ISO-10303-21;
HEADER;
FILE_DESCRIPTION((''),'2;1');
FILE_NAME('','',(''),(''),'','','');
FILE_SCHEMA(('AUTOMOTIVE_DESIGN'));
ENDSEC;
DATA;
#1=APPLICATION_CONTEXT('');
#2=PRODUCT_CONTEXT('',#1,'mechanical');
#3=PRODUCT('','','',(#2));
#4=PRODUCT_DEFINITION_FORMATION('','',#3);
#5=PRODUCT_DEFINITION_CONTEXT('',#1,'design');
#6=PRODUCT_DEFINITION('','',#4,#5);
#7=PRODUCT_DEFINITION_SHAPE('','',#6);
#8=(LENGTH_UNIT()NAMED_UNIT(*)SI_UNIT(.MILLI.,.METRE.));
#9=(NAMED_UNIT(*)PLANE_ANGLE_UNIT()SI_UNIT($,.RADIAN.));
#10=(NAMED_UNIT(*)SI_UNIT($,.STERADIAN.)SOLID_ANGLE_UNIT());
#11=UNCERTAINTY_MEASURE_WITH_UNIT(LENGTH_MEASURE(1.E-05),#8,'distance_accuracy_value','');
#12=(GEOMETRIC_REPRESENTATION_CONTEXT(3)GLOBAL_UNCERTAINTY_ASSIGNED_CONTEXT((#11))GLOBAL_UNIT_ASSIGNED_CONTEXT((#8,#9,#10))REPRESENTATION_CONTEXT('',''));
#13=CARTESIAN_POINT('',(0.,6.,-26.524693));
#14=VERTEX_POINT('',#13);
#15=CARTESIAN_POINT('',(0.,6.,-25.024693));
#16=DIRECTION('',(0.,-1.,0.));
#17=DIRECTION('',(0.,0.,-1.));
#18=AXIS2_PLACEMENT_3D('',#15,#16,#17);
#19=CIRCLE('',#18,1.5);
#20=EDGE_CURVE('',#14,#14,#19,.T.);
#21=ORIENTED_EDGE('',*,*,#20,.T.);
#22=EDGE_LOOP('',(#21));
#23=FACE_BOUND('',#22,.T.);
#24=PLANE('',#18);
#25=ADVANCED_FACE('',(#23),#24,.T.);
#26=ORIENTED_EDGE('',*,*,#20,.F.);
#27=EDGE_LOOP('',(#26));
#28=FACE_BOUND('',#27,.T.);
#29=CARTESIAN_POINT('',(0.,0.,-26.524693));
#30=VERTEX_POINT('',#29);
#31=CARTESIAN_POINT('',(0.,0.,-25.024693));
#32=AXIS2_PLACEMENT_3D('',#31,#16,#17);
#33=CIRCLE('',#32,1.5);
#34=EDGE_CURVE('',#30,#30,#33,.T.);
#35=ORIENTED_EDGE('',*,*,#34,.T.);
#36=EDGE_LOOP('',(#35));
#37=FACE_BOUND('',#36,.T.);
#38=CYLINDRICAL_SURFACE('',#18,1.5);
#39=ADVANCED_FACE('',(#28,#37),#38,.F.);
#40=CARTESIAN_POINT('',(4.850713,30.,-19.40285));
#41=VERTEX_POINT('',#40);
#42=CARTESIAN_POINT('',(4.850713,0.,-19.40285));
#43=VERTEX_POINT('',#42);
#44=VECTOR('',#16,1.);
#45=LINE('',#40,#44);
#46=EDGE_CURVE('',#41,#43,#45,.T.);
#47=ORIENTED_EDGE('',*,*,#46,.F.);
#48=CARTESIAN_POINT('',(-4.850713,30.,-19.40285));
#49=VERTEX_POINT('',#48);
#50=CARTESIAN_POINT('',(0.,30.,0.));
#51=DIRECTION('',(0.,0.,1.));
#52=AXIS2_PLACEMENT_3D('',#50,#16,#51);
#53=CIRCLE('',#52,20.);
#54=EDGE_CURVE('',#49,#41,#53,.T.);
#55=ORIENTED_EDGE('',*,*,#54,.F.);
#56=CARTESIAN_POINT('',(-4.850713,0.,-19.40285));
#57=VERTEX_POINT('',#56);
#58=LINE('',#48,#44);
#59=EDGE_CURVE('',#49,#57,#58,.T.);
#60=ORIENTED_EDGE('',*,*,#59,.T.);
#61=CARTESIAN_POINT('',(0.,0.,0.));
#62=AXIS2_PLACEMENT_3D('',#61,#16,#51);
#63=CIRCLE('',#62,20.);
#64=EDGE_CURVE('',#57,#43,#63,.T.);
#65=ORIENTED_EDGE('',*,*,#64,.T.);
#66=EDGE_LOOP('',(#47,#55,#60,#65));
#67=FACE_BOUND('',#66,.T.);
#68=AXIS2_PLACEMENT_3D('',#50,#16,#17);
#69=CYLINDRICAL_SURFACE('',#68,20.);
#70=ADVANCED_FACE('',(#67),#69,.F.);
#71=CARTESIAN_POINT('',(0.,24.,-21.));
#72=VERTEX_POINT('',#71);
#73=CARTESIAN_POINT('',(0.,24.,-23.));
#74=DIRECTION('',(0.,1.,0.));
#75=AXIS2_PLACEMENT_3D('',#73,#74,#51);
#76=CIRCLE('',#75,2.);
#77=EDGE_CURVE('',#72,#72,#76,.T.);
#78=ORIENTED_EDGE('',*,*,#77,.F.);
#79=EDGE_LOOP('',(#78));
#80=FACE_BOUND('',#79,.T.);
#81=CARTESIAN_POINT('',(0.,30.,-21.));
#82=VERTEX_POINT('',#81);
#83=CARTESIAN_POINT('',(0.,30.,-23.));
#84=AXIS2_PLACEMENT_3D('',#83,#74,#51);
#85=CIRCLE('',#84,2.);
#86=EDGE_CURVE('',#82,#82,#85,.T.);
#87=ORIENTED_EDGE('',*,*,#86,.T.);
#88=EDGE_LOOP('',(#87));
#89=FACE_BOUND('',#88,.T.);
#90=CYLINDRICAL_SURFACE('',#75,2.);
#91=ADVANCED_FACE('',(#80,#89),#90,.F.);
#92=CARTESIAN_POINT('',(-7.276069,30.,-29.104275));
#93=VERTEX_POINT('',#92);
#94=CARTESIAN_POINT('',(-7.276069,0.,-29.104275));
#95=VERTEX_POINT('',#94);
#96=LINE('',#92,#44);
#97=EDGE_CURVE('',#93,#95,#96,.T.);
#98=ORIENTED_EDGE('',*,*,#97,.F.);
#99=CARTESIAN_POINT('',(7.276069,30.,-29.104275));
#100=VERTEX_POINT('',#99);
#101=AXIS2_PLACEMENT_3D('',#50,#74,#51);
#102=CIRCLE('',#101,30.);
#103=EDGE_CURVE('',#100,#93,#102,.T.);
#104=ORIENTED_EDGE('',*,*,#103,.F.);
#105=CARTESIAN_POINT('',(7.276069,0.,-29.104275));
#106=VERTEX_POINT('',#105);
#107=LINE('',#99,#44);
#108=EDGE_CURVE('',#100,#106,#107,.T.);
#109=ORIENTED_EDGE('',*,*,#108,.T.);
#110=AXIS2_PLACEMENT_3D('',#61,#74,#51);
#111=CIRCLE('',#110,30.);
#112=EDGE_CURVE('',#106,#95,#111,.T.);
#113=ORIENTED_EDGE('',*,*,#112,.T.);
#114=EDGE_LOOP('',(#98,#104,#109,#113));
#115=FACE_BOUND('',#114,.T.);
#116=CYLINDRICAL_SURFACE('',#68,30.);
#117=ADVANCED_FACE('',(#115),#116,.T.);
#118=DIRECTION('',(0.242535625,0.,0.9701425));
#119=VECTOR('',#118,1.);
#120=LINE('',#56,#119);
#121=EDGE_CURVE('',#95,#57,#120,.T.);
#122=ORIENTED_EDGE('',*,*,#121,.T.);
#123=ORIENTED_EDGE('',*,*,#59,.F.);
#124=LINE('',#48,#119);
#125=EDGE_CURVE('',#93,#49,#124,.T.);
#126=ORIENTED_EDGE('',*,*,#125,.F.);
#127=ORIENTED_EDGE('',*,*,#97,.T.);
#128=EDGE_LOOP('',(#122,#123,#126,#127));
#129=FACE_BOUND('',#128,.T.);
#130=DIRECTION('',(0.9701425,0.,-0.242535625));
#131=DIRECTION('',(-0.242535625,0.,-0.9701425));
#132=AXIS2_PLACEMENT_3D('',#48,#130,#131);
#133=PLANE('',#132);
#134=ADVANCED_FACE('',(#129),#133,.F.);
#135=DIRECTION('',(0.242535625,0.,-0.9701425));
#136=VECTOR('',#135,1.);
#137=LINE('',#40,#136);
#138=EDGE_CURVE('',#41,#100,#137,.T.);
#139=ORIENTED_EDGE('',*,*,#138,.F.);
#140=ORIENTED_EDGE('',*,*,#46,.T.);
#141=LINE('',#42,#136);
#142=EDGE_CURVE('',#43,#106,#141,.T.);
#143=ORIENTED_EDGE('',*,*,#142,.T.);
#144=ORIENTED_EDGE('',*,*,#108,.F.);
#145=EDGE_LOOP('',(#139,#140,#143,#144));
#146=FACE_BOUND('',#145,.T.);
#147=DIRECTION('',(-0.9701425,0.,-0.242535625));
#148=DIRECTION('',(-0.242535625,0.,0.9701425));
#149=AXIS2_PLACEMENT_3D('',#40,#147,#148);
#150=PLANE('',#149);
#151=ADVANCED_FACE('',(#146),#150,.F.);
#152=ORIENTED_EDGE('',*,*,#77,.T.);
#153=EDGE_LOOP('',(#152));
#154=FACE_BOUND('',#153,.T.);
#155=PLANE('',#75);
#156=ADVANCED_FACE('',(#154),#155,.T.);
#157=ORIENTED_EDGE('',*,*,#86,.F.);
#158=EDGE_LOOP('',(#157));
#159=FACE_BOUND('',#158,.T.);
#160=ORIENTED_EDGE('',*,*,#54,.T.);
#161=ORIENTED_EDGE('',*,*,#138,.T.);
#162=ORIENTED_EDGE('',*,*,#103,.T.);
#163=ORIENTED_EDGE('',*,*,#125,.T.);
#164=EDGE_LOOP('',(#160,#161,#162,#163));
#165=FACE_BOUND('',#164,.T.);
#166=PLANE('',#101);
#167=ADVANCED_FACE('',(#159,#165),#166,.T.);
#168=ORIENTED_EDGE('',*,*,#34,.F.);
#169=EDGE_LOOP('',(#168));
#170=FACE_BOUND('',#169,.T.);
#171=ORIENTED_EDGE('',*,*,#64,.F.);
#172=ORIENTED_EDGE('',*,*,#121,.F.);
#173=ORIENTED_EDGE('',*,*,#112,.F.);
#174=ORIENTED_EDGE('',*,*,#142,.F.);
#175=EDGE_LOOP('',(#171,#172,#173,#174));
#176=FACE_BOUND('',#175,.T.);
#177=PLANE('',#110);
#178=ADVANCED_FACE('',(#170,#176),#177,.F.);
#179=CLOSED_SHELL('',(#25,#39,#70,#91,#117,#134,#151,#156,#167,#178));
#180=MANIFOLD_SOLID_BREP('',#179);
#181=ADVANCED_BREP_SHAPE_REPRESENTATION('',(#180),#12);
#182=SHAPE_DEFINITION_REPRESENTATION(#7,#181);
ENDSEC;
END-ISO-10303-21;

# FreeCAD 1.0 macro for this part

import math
import FreeCAD as App
import Part
import Sketcher

doc = App.newDocument("Part")
body = doc.addObject("PartDesign::Body", "Body")

sketch1 = body.newObject("Sketcher::SketchObject", "Sketch")
sketch1.AttachmentSupport = (doc.getObject("XZ_Plane"), [""])
sketch1.MapMode = "FlatFace"
sketch1.addGeometry([
    Part.LineSegment(App.Vector(-7, -29, 0), App.Vector(-5, -19, 0)),
    Part.ArcOfCircle(Part.Circle(App.Vector(0, 0, 0), App.Vector(0, 0, 1), 20), math.radians(-104), math.radians(-76)),
    Part.LineSegment(App.Vector(5, -19, 0), App.Vector(7, -29, 0)),
    Part.ArcOfCircle(Part.Circle(App.Vector(0, 0, 0), App.Vector(0, 0, 1), 30), math.radians(-104), math.radians(-76)),
], False)
sketch1.addConstraint([
    Sketcher.Constraint("Coincident", 0, 2, 1, 1),
    Sketcher.Constraint("Coincident", 1, 2, 2, 1),
    Sketcher.Constraint("Coincident", 2, 2, 3, 2),
    Sketcher.Constraint("Coincident", 3, 1, 0, 1),
    Sketcher.Constraint("Coincident", 1, 3, -1, 1),
    Sketcher.Constraint("Coincident", 3, 3, -1, 1),
    Sketcher.Constraint("Horizontal", 0, 2, 1, 2),
    Sketcher.Constraint("Horizontal", 2, 2, 3, 1),
    Sketcher.Constraint("Radius", 1, 20.0),
    Sketcher.Constraint("Radius", 3, 30.0),
    Sketcher.Constraint("DistanceY", 0, 2, -1, 1, 19.40285),
    Sketcher.Constraint("DistanceX", -1, 1, 2, 2, 7.276069),
])
pad1 = body.newObject("PartDesign::Pad", "Pad")
pad1.Profile = sketch1
pad1.Length = 30
pad1.Reversed = True

sketch2 = body.newObject("Sketcher::SketchObject", "Sketch001")
sketch2.AttachmentSupport = (doc.getObject("XZ_Plane"), [""])
sketch2.MapMode = "FlatFace"
sketch2.addGeometry(Part.Circle(App.Vector(0, -25, 0), App.Vector(0, 0, 1), 1.5), False)
sketch2.addConstraint([
    Sketcher.Constraint("PointOnObject", 0, 3, -2),
    Sketcher.Constraint("Diameter", 0, 3.0),
    Sketcher.Constraint("DistanceY", 0, 3, -1, 1, 25.024693),
])
pocket1 = body.newObject("PartDesign::Pocket", "Pocket")
pocket1.Profile = sketch2
pocket1.Length = 6

sketch3 = body.newObject("Sketcher::SketchObject", "Sketch002")
sketch3.AttachmentSupport = (doc.getObject("XZ_Plane"), [""])
sketch3.MapMode = "FlatFace"
sketch3.AttachmentOffset = App.Placement(App.Vector(0, 0, -30), App.Rotation())
sketch3.addGeometry(Part.Circle(App.Vector(0, -23, 0), App.Vector(0, 0, 1), 2), False)
sketch3.addConstraint([
    Sketcher.Constraint("PointOnObject", 0, 3, -2),
    Sketcher.Constraint("Diameter", 0, 4.0),
    Sketcher.Constraint("DistanceY", 0, 3, -1, 1, 23.0),
])
pocket2 = body.newObject("PartDesign::Pocket", "Pocket001")
pocket2.Profile = sketch3
pocket2.Length = 6
pocket2.Reversed = True

doc.recompute()
